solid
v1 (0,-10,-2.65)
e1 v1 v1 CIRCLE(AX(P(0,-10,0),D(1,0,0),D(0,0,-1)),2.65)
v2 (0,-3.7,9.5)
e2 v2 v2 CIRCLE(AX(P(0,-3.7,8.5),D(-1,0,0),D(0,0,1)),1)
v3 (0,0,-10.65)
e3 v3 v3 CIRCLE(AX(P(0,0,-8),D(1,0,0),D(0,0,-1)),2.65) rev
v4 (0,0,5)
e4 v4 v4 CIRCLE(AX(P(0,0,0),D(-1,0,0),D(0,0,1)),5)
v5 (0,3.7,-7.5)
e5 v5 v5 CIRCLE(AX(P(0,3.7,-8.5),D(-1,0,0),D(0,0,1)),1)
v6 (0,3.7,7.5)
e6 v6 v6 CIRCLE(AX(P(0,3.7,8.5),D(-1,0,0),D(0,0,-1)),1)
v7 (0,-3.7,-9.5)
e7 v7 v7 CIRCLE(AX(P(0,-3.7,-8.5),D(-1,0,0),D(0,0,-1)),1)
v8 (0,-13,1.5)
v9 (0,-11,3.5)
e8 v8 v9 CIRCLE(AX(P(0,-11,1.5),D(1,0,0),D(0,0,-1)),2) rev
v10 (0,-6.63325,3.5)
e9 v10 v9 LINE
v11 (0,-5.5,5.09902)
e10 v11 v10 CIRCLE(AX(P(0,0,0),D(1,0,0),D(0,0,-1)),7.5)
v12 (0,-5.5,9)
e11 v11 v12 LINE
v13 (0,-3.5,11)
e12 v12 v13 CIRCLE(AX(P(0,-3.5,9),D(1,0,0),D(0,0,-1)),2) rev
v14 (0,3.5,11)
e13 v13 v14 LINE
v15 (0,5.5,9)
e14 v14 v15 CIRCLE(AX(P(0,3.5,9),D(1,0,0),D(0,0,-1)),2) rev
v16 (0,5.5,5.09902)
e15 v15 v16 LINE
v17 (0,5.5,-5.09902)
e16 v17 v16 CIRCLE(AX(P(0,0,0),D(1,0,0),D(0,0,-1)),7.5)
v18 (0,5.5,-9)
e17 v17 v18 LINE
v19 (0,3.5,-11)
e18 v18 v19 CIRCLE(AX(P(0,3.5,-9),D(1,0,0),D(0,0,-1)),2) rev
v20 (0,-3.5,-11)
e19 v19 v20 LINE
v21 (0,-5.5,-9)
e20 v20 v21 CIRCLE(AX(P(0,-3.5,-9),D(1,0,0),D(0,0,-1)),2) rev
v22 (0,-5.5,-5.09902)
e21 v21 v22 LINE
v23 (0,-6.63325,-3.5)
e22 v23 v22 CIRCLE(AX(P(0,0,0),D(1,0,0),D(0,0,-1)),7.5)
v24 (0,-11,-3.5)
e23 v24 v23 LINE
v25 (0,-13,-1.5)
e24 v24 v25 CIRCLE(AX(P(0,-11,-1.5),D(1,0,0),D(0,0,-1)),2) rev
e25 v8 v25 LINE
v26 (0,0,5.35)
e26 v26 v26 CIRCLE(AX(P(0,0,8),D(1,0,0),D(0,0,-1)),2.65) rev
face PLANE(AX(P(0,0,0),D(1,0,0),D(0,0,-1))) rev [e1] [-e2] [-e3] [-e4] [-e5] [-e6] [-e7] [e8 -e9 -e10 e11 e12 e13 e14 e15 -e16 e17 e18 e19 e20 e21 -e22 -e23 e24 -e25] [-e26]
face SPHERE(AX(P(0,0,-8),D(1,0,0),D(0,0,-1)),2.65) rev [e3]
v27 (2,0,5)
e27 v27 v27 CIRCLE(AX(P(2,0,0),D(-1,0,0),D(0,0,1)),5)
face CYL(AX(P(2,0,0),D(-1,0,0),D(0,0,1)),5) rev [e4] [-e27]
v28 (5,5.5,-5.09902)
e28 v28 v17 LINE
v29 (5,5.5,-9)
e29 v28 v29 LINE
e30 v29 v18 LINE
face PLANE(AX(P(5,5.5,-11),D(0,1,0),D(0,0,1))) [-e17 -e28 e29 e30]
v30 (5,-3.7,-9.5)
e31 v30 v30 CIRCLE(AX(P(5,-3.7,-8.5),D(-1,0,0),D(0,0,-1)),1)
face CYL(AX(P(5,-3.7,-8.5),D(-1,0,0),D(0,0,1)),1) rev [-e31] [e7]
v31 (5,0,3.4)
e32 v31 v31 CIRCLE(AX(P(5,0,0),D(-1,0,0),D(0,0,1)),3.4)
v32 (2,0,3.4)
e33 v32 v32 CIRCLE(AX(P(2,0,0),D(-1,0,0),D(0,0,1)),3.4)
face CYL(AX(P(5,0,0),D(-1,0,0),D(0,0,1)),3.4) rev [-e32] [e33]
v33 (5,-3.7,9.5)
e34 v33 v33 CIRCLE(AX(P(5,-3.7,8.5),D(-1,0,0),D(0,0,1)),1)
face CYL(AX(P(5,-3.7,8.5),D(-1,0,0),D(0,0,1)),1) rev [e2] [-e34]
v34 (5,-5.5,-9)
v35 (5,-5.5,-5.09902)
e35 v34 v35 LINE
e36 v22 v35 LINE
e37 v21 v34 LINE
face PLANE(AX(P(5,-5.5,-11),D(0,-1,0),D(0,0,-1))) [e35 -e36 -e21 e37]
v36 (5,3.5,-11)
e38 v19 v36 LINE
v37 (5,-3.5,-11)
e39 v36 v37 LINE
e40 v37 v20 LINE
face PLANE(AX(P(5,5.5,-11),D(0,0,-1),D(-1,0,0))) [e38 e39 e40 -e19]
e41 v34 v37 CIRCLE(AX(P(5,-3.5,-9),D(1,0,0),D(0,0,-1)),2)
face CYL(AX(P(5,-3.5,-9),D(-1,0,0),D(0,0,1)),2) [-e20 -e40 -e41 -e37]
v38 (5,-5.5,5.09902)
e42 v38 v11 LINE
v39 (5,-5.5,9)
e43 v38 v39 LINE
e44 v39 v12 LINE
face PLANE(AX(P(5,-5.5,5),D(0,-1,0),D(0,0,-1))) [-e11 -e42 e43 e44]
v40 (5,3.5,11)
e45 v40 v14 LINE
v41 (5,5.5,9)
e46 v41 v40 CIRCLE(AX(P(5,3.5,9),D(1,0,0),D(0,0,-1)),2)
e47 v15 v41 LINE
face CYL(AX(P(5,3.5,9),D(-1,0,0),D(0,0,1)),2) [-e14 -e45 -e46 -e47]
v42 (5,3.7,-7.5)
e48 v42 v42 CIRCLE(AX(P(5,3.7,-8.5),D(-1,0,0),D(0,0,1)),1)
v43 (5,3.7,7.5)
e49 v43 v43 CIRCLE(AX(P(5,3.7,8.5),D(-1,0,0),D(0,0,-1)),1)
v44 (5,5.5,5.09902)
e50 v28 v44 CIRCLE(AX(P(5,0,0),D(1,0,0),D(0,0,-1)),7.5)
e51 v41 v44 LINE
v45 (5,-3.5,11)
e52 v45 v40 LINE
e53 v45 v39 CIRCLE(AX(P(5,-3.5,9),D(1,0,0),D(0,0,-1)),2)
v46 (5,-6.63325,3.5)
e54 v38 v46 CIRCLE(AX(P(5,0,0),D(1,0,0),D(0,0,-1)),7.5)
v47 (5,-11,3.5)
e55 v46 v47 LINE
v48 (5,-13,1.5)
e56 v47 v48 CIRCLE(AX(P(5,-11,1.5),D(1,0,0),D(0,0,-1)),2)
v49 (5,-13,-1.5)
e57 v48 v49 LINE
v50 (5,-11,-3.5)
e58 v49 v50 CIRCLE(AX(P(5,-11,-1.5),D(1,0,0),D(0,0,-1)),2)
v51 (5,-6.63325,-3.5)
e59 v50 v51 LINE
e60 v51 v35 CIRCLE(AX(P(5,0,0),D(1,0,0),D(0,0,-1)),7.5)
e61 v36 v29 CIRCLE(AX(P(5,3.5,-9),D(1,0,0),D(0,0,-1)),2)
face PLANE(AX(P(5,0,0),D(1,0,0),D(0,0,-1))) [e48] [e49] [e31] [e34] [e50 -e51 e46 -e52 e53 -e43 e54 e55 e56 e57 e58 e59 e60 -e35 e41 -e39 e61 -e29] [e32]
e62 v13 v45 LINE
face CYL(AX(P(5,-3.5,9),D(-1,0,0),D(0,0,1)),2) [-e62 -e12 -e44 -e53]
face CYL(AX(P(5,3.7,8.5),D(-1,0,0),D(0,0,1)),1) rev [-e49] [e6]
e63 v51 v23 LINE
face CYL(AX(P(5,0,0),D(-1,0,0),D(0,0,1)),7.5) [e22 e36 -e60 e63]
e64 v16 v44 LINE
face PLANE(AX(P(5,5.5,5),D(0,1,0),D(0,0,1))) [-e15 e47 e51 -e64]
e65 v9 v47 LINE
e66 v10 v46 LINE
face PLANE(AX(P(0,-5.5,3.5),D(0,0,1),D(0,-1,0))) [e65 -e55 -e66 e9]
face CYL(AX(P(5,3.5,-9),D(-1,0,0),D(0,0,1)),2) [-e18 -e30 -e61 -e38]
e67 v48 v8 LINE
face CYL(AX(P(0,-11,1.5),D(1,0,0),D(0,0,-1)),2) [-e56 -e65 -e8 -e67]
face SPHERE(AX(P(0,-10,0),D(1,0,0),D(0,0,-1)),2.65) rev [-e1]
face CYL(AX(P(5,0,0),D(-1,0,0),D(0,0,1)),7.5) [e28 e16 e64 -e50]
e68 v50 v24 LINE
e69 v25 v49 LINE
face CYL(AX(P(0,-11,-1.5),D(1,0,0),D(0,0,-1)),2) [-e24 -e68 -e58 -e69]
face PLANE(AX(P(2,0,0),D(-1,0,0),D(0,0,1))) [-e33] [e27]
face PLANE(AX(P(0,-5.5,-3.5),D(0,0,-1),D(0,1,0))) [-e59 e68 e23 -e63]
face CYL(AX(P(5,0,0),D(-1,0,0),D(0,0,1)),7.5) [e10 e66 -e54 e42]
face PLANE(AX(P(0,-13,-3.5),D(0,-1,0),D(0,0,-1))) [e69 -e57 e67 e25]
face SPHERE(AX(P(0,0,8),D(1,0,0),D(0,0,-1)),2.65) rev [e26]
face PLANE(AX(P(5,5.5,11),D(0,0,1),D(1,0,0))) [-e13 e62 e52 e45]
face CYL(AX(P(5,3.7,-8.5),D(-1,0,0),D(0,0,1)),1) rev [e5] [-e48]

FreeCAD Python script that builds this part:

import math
import FreeCAD as App
import Part
import Sketcher
Q = App.Units.Quantity


def edges_at(feature, points):
    """Names of the edges that pass closest to the given points."""
    edges = feature.Shape.Edges
    near = lambda p: min(range(len(edges)), key=lambda i: edges[i].distToShape(Part.Vertex(*p))[0])
    return sorted({f"Edge{near(p) + 1}" for p in points})

doc = App.newDocument("Part")
body = doc.addObject("PartDesign::Body", "Body")

# Sketch on YZ plane
sketch1 = doc.addObject("Sketcher::SketchObject", "Sketch")
body.addObject(sketch1)
sketch1.AttachmentSupport = (doc.YZ_Plane, [""])
sketch1.MapMode = "FlatFace"
sketch1.addGeometry(Part.Circle(App.Vector(0, 0, 0), App.Vector(0, 0, 1), 8), False)
sketch1.addConstraint([
    Sketcher.Constraint("Coincident", 0, 3, -1, 1),
    Sketcher.Constraint("Diameter", 0, Q("15 mm")),
])
pad1 = doc.addObject("PartDesign::Pad", "Pad")
body.addObject(pad1)
pad1.Profile = sketch1
pad1.Length = 5

# Sketch on YZ plane
sketch2 = doc.addObject("Sketcher::SketchObject", "Sketch001")
body.addObject(sketch2)
sketch2.AttachmentSupport = (doc.YZ_Plane, [""])
sketch2.MapMode = "FlatFace"
sketch2.addGeometry(Part.Circle(App.Vector(0, 0, 0), App.Vector(0, 0, 1), 5), False)
sketch2.addConstraint([
    Sketcher.Constraint("Coincident", 0, 3, -1, 1),
    Sketcher.Constraint("Diameter", 0, Q("10 mm")),
])
pocket1 = doc.addObject("PartDesign::Pocket", "Pocket")
body.addObject(pocket1)
pocket1.Profile = sketch2
pocket1.Length = 2
pocket1.Reversed = True

# Sketch on YZ plane
sketch3 = doc.addObject("Sketcher::SketchObject", "Sketch002")
body.addObject(sketch3)
sketch3.AttachmentSupport = (doc.YZ_Plane, [""])
sketch3.MapMode = "FlatFace"
sketch3.AttachmentOffset = App.Placement(App.Vector(0, 0, 2), App.Rotation())
sketch3.addGeometry(Part.Circle(App.Vector(0, 0, 0), App.Vector(0, 0, 1), 3.4), False)
sketch3.addConstraint([
    Sketcher.Constraint("Coincident", 0, 3, -1, 1),
    Sketcher.Constraint("Diameter", 0, Q("6.8 mm")),
])
pocket2 = doc.addObject("PartDesign::Pocket", "Pocket001")
body.addObject(pocket2)
pocket2.Profile = sketch3
pocket2.Type = "ThroughAll"
pocket2.Reversed = True

# Sketch on YZ plane
sketch4 = doc.addObject("Sketcher::SketchObject", "Sketch003")
body.addObject(sketch4)
sketch4.AttachmentSupport = (doc.YZ_Plane, [""])
sketch4.MapMode = "FlatFace"
sketch4.addGeometry([
    Part.LineSegment(App.Vector(6, 5, 0), App.Vector(-6, 5, 0)),  # 0
    Part.LineSegment(App.Vector(-6, 5, 0), App.Vector(-6, 11, 0)),  # 1
    Part.LineSegment(App.Vector(-6, 11, 0), App.Vector(6, 11, 0)),  # 2
    Part.LineSegment(App.Vector(6, 11, 0), App.Vector(6, 5, 0)),  # 3
    Part.LineSegment(App.Vector(6, -11, 0), App.Vector(-6, -11, 0)),  # 4
    Part.LineSegment(App.Vector(-6, -11, 0), App.Vector(-6, -5, 0)),  # 5
    Part.LineSegment(App.Vector(-6, -5, 0), App.Vector(6, -5, 0)),  # 6
    Part.LineSegment(App.Vector(6, -5, 0), App.Vector(6, -11, 0)),  # 7
], False)
sketch4.addConstraint([
    Sketcher.Constraint("Coincident", 0, 2, 1, 1),
    Sketcher.Constraint("Coincident", 1, 2, 2, 1),
    Sketcher.Constraint("Coincident", 2, 2, 3, 1),
    Sketcher.Constraint("Coincident", 3, 2, 0, 1),
    Sketcher.Constraint("Coincident", 4, 2, 5, 1),
    Sketcher.Constraint("Coincident", 5, 2, 6, 1),
    Sketcher.Constraint("Coincident", 6, 2, 7, 1),
    Sketcher.Constraint("Coincident", 7, 2, 4, 1),
    Sketcher.Constraint("Horizontal", 0),
    Sketcher.Constraint("Vertical", 1),
    Sketcher.Constraint("Horizontal", 2),
    Sketcher.Constraint("Vertical", 3),
    Sketcher.Constraint("Horizontal", 4),
    Sketcher.Constraint("Vertical", 5),
    Sketcher.Constraint("Horizontal", 6),
    Sketcher.Constraint("Vertical", 7),
    Sketcher.Constraint("Symmetric", 2, 2, 4, 2, -1, 1),
    Sketcher.Constraint("Symmetric", 0, 2, 6, 2, -1, 1),
    Sketcher.Constraint("Vertical", 1, 2, 4, 2),
    Sketcher.Constraint("DistanceX", 0, 2, 0, 1, Q("11 mm")),
    Sketcher.Constraint("DistanceY", 1, 1, 1, 2, Q("6 mm")),
    Sketcher.Constraint("DistanceY", -1, 1, 0, 2, Q("5 mm")),
])
pad2 = doc.addObject("PartDesign::Pad", "Pad001")
body.addObject(pad2)
pad2.Profile = sketch4
pad2.Length = 5

# Sketch on YZ plane
sketch5 = doc.addObject("Sketcher::SketchObject", "Sketch004")
body.addObject(sketch5)
sketch5.AttachmentSupport = (doc.YZ_Plane, [""])
sketch5.MapMode = "FlatFace"
sketch5.addGeometry([
    Part.LineSegment(App.Vector(2.6, 8, 0), App.Vector(-2.6, 8, 0)),
    Part.ArcOfCircle(Part.Circle(App.Vector(0, 8, 0), App.Vector(0, 0, 1), 2.6), math.radians(0), math.radians(180)),
], False)
sketch5.addGeometry(Part.LineSegment(App.Vector(2.6, 8, 0), App.Vector(-2.6, 8, 0)), True)  # axis
sketch5.addConstraint([
    Sketcher.Constraint("Coincident", 0, 1, 1, 1),
    Sketcher.Constraint("Coincident", 1, 2, 0, 2),
    Sketcher.Constraint("Horizontal", 0),
    Sketcher.Constraint("Horizontal", 2),
    Sketcher.Constraint("Coincident", 2, 1, 0, 1),
    Sketcher.Constraint("PointOnObject", 1, 3, -2),
    Sketcher.Constraint("Horizontal", 1, 3, 0, 1),
    Sketcher.Constraint("Equal", 0, 2),
    Sketcher.Constraint("Radius", 1, Q("2.65 mm")),
    Sketcher.Constraint("DistanceY", -1, 1, 1, 3, Q("8 mm")),
])
groove = doc.addObject("PartDesign::Groove", "Groove")
body.addObject(groove)
groove.Profile = sketch5
groove.ReferenceAxis = (sketch5, ["Axis0"])
groove.Angle = 360

# Sketch on YZ plane
sketch6 = doc.addObject("Sketcher::SketchObject", "Sketch005")
body.addObject(sketch6)
sketch6.AttachmentSupport = (doc.YZ_Plane, [""])
sketch6.MapMode = "FlatFace"
sketch6.addGeometry([
    Part.LineSegment(App.Vector(2.6, -8, 0), App.Vector(-2.6, -8, 0)),
    Part.ArcOfCircle(Part.Circle(App.Vector(0, -8, 0), App.Vector(0, 0, 1), 2.6), math.radians(0), math.radians(180)),
], False)
sketch6.addGeometry(Part.LineSegment(App.Vector(2.6, -8, 0), App.Vector(-2.6, -8, 0)), True)  # axis
sketch6.addConstraint([
    Sketcher.Constraint("Coincident", 0, 1, 1, 1),
    Sketcher.Constraint("Coincident", 1, 2, 0, 2),
    Sketcher.Constraint("Horizontal", 0),
    Sketcher.Constraint("Horizontal", 2),
    Sketcher.Constraint("Coincident", 2, 1, 0, 1),
    Sketcher.Constraint("PointOnObject", 1, 3, -2),
    Sketcher.Constraint("Horizontal", 1, 3, 0, 1),
    Sketcher.Constraint("Equal", 0, 2),
    Sketcher.Constraint("Radius", 1, Q("2.65 mm")),
    Sketcher.Constraint("DistanceY", 1, 3, -1, 1, Q("8 mm")),
])
groove2 = doc.addObject("PartDesign::Groove", "Groove001")
body.addObject(groove2)
groove2.Profile = sketch6
groove2.ReferenceAxis = (sketch6, ["Axis0"])
groove2.Angle = 360
doc.recompute()

fillet = doc.addObject("PartDesign::Fillet", "Fillet")
body.addObject(fillet)
fillet.Base = (groove2, edges_at(groove2, [
    (2.5, -5.5, 11),
    (2.5, 5.5, 11),
    (2.5, 5.5, -11),
    (2.5, -5.5, -11),
]))
fillet.Radius = 2

# Sketch on YZ plane
sketch7 = doc.addObject("Sketcher::SketchObject", "Sketch006")
body.addObject(sketch7)
sketch7.AttachmentSupport = (doc.YZ_Plane, [""])
sketch7.MapMode = "FlatFace"
sketch7.addGeometry([
    Part.Circle(App.Vector(-3.7, 8.5, 0), App.Vector(0, 0, 1), 1),
    Part.Circle(App.Vector(3.7, 8.5, 0), App.Vector(0, 0, 1), 1),
    Part.Circle(App.Vector(-3.7, -8.5, 0), App.Vector(0, 0, 1), 1),
    Part.Circle(App.Vector(3.7, -8.5, 0), App.Vector(0, 0, 1), 1),
], False)
sketch7.addConstraint([
    Sketcher.Constraint("Equal", 0, 1),
    Sketcher.Constraint("Equal", 1, 2),
    Sketcher.Constraint("Equal", 2, 3),
    Sketcher.Constraint("Symmetric", 1, 3, 2, 3, -1, 1),
    Sketcher.Constraint("Symmetric", 0, 3, 3, 3, -1, 1),
    Sketcher.Constraint("Symmetric", 0, 3, 1, 3, -2),
    Sketcher.Constraint("Diameter", 0, Q("2 mm")),
    Sketcher.Constraint("DistanceY", 2, 3, 0, 3, Q("17 mm")),
    Sketcher.Constraint("DistanceX", 0, 3, -1, 1, Q("3.7 mm")),
])
pocket3 = doc.addObject("PartDesign::Pocket", "Pocket002")
body.addObject(pocket3)
pocket3.Profile = sketch7
pocket3.Type = "ThroughAll"
pocket3.Reversed = True

# Sketch on YZ plane
sketch8 = doc.addObject("Sketcher::SketchObject", "Sketch007")
body.addObject(sketch8)
sketch8.AttachmentSupport = (doc.YZ_Plane, [""])
sketch8.MapMode = "FlatFace"
sketch8.AttachmentOffset = App.Placement(App.Vector(0, 0, 5), App.Rotation())
sketch8.addGeometry([
    Part.LineSegment(App.Vector(-6, 4, 0), App.Vector(-13, 4, 0)),
    Part.LineSegment(App.Vector(-13, 4, 0), App.Vector(-13, -4, 0)),
    Part.LineSegment(App.Vector(-13, -4, 0), App.Vector(-6, -4, 0)),
    Part.LineSegment(App.Vector(-6, -4, 0), App.Vector(-6, 4, 0)),
], False)
sketch8.addConstraint([
    Sketcher.Constraint("Coincident", 0, 2, 1, 1),
    Sketcher.Constraint("Coincident", 1, 2, 2, 1),
    Sketcher.Constraint("Coincident", 2, 2, 3, 1),
    Sketcher.Constraint("Coincident", 3, 2, 0, 1),
    Sketcher.Constraint("Horizontal", 0),
    Sketcher.Constraint("Vertical", 1),
    Sketcher.Constraint("Horizontal", 2),
    Sketcher.Constraint("Vertical", 3),
    Sketcher.Constraint("DistanceY", 1, 2, 1, 1, Q("7 mm")),
    Sketcher.Constraint("DistanceX", 0, 2, 0, 1, Q("7.5 mm")),
    Sketcher.Constraint("DistanceX", 0, 2, -1, 1, Q("13 mm")),
    Sketcher.Constraint("DistanceY", -1, 1, 0, 2, Q("3.5 mm")),
])
pad3 = doc.addObject("PartDesign::Pad", "Pad002")
body.addObject(pad3)
pad3.Profile = sketch8
pad3.Length = 5
pad3.Reversed = True

# Sketch on YZ plane
sketch9 = doc.addObject("Sketcher::SketchObject", "Sketch008")
body.addObject(sketch9)
sketch9.AttachmentSupport = (doc.YZ_Plane, [""])
sketch9.MapMode = "FlatFace"
sketch9.addGeometry([
    Part.LineSegment(App.Vector(-12.7, 0, 0), App.Vector(-7.3, 0, 0)),
    Part.ArcOfCircle(Part.Circle(App.Vector(-10, 0, 0), App.Vector(0, 0, 1), 2.6), math.radians(180), math.radians(360)),
], False)
sketch9.addConstraint([
    Sketcher.Constraint("Coincident", 0, 1, 1, 1),
    Sketcher.Constraint("Coincident", 1, 2, 0, 2),
    Sketcher.Constraint("Horizontal", 0),
    Sketcher.Constraint("PointOnObject", 1, 3, -1),
    Sketcher.Constraint("PointOnObject", 0, 1, -1),
    Sketcher.Constraint("Radius", 1, Q("2.65 mm")),
    Sketcher.Constraint("DistanceX", 1, 3, -1, 1, Q("10 mm")),
])
groove3 = doc.addObject("PartDesign::Groove", "Groove002")
body.addObject(groove3)
groove3.Profile = sketch9
groove3.ReferenceAxis = (sketch9, ["H_Axis"])
groove3.Angle = 360
doc.recompute()

fillet2 = doc.addObject("PartDesign::Fillet", "Fillet001")
body.addObject(fillet2)
fillet2.Base = (groove3, edges_at(groove3, [(2.5, -13, 3.5), (2.5, -13, -3.5)]))
fillet2.Radius = 2

doc.recompute()
